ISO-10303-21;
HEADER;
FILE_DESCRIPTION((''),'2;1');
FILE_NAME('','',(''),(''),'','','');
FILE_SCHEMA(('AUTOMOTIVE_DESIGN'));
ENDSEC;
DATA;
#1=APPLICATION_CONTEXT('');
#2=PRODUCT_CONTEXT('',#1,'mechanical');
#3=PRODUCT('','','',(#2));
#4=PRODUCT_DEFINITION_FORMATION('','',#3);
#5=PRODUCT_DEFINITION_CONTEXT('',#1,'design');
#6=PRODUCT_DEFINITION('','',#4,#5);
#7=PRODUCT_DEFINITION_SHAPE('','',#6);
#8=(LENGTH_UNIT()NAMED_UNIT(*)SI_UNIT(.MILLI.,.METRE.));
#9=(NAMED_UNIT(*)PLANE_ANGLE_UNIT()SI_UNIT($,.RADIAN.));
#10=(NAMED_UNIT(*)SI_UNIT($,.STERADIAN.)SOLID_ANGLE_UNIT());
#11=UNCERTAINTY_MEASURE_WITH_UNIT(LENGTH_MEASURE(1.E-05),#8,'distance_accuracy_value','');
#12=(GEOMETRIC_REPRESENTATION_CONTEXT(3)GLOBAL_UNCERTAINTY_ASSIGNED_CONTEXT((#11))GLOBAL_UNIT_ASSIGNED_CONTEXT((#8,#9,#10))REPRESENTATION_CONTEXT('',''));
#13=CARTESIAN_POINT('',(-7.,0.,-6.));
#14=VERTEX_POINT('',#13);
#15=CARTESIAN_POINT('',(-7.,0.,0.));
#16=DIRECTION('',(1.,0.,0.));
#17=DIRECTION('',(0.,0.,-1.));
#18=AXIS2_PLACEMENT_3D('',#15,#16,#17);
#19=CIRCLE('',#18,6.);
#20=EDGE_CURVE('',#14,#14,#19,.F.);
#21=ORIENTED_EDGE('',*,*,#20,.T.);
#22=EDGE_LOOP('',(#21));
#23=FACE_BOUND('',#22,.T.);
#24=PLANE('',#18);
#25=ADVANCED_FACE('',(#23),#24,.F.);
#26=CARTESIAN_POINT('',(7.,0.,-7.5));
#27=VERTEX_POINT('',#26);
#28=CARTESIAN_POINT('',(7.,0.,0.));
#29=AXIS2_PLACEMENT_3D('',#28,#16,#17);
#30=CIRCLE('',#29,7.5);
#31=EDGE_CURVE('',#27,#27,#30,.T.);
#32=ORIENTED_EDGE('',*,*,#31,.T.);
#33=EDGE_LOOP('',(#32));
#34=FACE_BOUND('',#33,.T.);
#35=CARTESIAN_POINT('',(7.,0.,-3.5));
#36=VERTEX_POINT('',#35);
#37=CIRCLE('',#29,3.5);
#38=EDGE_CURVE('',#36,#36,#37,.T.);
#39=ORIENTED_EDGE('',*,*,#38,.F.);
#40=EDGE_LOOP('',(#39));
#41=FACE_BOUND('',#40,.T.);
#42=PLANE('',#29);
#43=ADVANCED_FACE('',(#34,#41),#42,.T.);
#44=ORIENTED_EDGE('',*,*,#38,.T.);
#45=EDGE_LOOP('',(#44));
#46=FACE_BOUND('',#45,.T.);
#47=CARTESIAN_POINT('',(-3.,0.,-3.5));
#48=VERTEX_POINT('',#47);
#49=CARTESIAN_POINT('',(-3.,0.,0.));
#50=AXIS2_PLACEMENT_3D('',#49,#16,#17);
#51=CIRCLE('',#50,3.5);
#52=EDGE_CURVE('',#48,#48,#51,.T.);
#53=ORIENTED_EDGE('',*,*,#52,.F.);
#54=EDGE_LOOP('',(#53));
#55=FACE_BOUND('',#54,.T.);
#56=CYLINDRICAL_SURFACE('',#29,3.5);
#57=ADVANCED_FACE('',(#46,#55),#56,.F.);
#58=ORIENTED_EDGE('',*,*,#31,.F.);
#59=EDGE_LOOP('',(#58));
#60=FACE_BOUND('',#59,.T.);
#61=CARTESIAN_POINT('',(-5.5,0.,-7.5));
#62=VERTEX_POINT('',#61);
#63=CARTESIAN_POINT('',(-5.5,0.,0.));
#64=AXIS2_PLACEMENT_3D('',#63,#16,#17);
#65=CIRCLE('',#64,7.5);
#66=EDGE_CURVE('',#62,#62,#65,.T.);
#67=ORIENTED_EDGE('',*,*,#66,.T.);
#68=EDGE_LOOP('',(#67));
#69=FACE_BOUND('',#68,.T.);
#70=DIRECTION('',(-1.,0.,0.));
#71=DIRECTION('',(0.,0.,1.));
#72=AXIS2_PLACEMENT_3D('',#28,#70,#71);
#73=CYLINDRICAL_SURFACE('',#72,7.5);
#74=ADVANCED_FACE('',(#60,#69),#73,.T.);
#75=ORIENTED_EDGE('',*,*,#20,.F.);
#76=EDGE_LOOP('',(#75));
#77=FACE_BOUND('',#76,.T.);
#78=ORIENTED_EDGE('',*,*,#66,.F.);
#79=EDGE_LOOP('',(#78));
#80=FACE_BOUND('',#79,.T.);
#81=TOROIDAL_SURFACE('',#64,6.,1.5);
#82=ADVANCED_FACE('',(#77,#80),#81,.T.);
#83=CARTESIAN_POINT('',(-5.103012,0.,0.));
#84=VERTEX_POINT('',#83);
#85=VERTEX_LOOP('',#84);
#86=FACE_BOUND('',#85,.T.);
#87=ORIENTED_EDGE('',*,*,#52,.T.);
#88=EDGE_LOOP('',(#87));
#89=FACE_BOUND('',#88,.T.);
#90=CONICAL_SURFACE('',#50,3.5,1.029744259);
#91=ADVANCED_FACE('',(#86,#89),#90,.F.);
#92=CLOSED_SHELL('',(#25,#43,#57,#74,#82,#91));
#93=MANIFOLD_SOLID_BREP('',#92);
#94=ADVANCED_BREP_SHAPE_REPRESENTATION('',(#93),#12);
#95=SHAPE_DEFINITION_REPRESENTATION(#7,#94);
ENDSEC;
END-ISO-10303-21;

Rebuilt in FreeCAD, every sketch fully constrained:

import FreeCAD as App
import Part
import Sketcher
from FreeCAD import Vector


def edges_at(feature, points):
    """Names of the edges that pass closest to the given points."""
    edges = feature.Shape.Edges
    near = lambda p: min(range(len(edges)), key=lambda i: edges[i].distToShape(Part.Vertex(*p))[0])
    return sorted({f"Edge{near(p) + 1}" for p in points})

doc = App.newDocument("Part")
body = doc.addObject("PartDesign::Body", "Body")

# Sketch on YZ plane
sketch1 = doc.addObject("Sketcher::SketchObject", "Sketch")
body.addObject(sketch1)
sketch1.AttachmentSupport = (doc.YZ_Plane, [""])
sketch1.MapMode = "FlatFace"
sketch1.addGeometry(Part.Circle(Vector(0, 0, 0), Vector(0, 0, 1), 8), False)
sketch1.addConstraint(Sketcher.Constraint("Coincident", 0, 3, -1, 1))
sketch1.addConstraint(Sketcher.Constraint("Diameter", 0, 15.0))
pad1 = doc.addObject("PartDesign::Pad", "Pad")
body.addObject(pad1)
pad1.Profile = sketch1
pad1.Length = 14
pad1.Midplane = True

# Sketch on YZ plane
sketch2 = doc.addObject("Sketcher::SketchObject", "Sketch001")
body.addObject(sketch2)
sketch2.AttachmentSupport = (doc.YZ_Plane, [""])
sketch2.MapMode = "FlatFace"
sketch2.AttachmentOffset = App.Placement(Vector(0, 0, 7), App.Rotation())
sketch2.addGeometry(Part.Circle(Vector(0, 0, 0), Vector(0, 0, 1), 3.5), False)
sketch2.addConstraint(Sketcher.Constraint("Coincident", 0, 3, -1, 1))
sketch2.addConstraint(Sketcher.Constraint("Diameter", 0, 7.0))
doc.recompute()
hole = doc.addObject("PartDesign::Hole", "Hole")
body.addObject(hole)
hole.Profile = sketch2
hole.ThreadType = "None"
hole.Diameter = 7
hole.DepthType = "Dimension"
hole.Depth = 10
hole.DrillPoint = "Angled"
hole.DrillPointAngle = 118
doc.recompute()

fillet = doc.addObject("PartDesign::Fillet", "Fillet")
body.addObject(fillet)
fillet.Base = (hole, edges_at(hole, [(-7, 0, 7.5)]))
fillet.Radius = 1.5

doc.recompute()
